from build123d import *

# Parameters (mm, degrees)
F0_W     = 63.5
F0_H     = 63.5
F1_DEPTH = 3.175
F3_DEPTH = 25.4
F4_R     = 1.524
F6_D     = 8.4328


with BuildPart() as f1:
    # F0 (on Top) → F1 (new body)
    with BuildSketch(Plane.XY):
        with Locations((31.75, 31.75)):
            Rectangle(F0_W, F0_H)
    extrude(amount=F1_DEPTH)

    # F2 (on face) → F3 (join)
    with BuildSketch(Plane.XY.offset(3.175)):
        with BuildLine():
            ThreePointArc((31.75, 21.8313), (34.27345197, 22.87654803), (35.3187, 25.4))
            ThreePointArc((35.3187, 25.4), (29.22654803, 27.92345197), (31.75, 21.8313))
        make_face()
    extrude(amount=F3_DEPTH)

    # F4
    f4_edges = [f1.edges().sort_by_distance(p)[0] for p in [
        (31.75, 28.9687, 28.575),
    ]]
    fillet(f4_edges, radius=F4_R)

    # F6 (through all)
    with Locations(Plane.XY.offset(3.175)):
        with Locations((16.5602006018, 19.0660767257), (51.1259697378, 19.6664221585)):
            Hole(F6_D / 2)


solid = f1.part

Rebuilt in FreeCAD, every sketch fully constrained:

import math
import FreeCAD as App
import Part
import Sketcher
from FreeCAD import Vector
Q = App.Units.Quantity


def edges_at(feature, points):
    """Names of the edges that pass closest to the given points."""
    edges = feature.Shape.Edges
    near = lambda p: min(range(len(edges)), key=lambda i: edges[i].distToShape(Part.Vertex(*p))[0])
    return sorted({f"Edge{near(p) + 1}" for p in points})

doc = App.newDocument("Part")
body = doc.addObject("PartDesign::Body", "Body")

# Sketch on XY plane
sketch1 = doc.addObject("Sketcher::SketchObject", "Sketch")
body.addObject(sketch1)
sketch1.AttachmentSupport = (doc.XY_Plane, [""])
sketch1.MapMode = "FlatFace"
sketch1.addGeometry(Part.LineSegment(Vector(0, 63.5, 0), Vector(0, 0, 0)), False)
sketch1.addGeometry(Part.LineSegment(Vector(0, 0, 0), Vector(63.5, 0, 0)), False)
sketch1.addGeometry(Part.LineSegment(Vector(63.5, 0, 0), Vector(63.5, 63.5, 0)), False)
sketch1.addGeometry(Part.LineSegment(Vector(63.5, 63.5, 0), Vector(0, 63.5, 0)), False)
sketch1.addConstraint(Sketcher.Constraint("Coincident", 0, 2, 1, 1))
sketch1.addConstraint(Sketcher.Constraint("Coincident", 1, 2, 2, 1))
sketch1.addConstraint(Sketcher.Constraint("Coincident", 2, 2, 3, 1))
sketch1.addConstraint(Sketcher.Constraint("Coincident", 3, 2, 0, 1))
sketch1.addConstraint(Sketcher.Constraint("Vertical", 0))
sketch1.addConstraint(Sketcher.Constraint("Horizontal", 1))
sketch1.addConstraint(Sketcher.Constraint("Vertical", 2))
sketch1.addConstraint(Sketcher.Constraint("Horizontal", 3))
sketch1.addConstraint(Sketcher.Constraint("Coincident", 0, 2, -1, 1))
sketch1.addConstraint(Sketcher.Constraint("Equal", 3, 0))
sketch1.addConstraint(Sketcher.Constraint("DistanceX", 1, 1, 1, 2, Q("2.5 in")))
pad1 = doc.addObject("PartDesign::Pad", "Pad")
body.addObject(pad1)
pad1.Profile = sketch1
pad1.Length = Q("0.125 in")

# Sketch on XY plane
sketch2 = doc.addObject("Sketcher::SketchObject", "Sketch001")
body.addObject(sketch2)
sketch2.AttachmentSupport = (doc.XY_Plane, [""])
sketch2.MapMode = "FlatFace"
sketch2.AttachmentOffset = App.Placement(Vector(0, 0, 0.125 * 25.4), App.Rotation())
sketch2.addGeometry(Part.ArcOfCircle(Part.Circle(Vector(31.75, 25.4, 0), Vector(0, 0, 1), 3.5687), math.radians(-90), math.radians(0)), False)
sketch2.addGeometry(Part.ArcOfCircle(Part.Circle(Vector(31.75, 25.4, 0), Vector(0, 0, 1), 3.5687), math.radians(0), math.radians(270)), False)
sketch2.addConstraint(Sketcher.Constraint("Tangent", 0, 1, 1, 2))
sketch2.addConstraint(Sketcher.Constraint("Coincident", 1, 1, 0, 2))
sketch2.addConstraint(Sketcher.Constraint("Horizontal", 0, 3, 1, 1))
sketch2.addConstraint(Sketcher.Constraint("Vertical", 1, 3, 0, 1))
sketch2.addConstraint(Sketcher.Constraint("DistanceY", -1, 1, 0, 3, Q("1 in")))
sketch2.addConstraint(Sketcher.Constraint("Radius", 0, Q("0.1405 in")))
sketch2.addConstraint(Sketcher.Constraint("DistanceX", -1, 1, 0, 3, Q("1.25 in")))
pad2 = doc.addObject("PartDesign::Pad", "Pad001")
body.addObject(pad2)
pad2.Profile = sketch2
pad2.Length = Q("1 in")
doc.recompute()

fillet = doc.addObject("PartDesign::Fillet", "Fillet")
body.addObject(fillet)
fillet.Base = (pad2, edges_at(pad2, [(29.227, 27.923, 28.575)]))
fillet.Radius = Q("0.06 in")

# Sketch on XY plane
sketch3 = doc.addObject("Sketcher::SketchObject", "Sketch002")
body.addObject(sketch3)
sketch3.AttachmentSupport = (doc.XY_Plane, [""])
sketch3.MapMode = "FlatFace"
sketch3.AttachmentOffset = App.Placement(Vector(0, 0, 0.125 * 25.4), App.Rotation())
sketch3.addGeometry(Part.Circle(Vector(16.560201, 19.066077, 0), Vector(0, 0, 1), 4.2164), False)
sketch3.addGeometry(Part.Circle(Vector(51.12597, 19.666422, 0), Vector(0, 0, 1), 4.2164), False)
sketch3.addConstraint(Sketcher.Constraint("Equal", 0, 1))
sketch3.addConstraint(Sketcher.Constraint("Diameter", 0, Q("0.332 in")))
sketch3.addConstraint(Sketcher.Constraint("DistanceX", -1, 1, 0, 3, Q("16.560201 mm")))
sketch3.addConstraint(Sketcher.Constraint("DistanceX", -1, 1, 1, 3, Q("51.12597 mm")))
sketch3.addConstraint(Sketcher.Constraint("DistanceY", -1, 1, 0, 3, Q("19.066077 mm")))
sketch3.addConstraint(Sketcher.Constraint("DistanceY", -1, 1, 1, 3, Q("19.666422 mm")))
doc.recompute()
hole = doc.addObject("PartDesign::Hole", "Hole")
body.addObject(hole)
hole.Profile = sketch3
hole.ThreadType = "None"
hole.Diameter = Q("0.332 in")
hole.DepthType = "ThroughAll"

doc.recompute()
